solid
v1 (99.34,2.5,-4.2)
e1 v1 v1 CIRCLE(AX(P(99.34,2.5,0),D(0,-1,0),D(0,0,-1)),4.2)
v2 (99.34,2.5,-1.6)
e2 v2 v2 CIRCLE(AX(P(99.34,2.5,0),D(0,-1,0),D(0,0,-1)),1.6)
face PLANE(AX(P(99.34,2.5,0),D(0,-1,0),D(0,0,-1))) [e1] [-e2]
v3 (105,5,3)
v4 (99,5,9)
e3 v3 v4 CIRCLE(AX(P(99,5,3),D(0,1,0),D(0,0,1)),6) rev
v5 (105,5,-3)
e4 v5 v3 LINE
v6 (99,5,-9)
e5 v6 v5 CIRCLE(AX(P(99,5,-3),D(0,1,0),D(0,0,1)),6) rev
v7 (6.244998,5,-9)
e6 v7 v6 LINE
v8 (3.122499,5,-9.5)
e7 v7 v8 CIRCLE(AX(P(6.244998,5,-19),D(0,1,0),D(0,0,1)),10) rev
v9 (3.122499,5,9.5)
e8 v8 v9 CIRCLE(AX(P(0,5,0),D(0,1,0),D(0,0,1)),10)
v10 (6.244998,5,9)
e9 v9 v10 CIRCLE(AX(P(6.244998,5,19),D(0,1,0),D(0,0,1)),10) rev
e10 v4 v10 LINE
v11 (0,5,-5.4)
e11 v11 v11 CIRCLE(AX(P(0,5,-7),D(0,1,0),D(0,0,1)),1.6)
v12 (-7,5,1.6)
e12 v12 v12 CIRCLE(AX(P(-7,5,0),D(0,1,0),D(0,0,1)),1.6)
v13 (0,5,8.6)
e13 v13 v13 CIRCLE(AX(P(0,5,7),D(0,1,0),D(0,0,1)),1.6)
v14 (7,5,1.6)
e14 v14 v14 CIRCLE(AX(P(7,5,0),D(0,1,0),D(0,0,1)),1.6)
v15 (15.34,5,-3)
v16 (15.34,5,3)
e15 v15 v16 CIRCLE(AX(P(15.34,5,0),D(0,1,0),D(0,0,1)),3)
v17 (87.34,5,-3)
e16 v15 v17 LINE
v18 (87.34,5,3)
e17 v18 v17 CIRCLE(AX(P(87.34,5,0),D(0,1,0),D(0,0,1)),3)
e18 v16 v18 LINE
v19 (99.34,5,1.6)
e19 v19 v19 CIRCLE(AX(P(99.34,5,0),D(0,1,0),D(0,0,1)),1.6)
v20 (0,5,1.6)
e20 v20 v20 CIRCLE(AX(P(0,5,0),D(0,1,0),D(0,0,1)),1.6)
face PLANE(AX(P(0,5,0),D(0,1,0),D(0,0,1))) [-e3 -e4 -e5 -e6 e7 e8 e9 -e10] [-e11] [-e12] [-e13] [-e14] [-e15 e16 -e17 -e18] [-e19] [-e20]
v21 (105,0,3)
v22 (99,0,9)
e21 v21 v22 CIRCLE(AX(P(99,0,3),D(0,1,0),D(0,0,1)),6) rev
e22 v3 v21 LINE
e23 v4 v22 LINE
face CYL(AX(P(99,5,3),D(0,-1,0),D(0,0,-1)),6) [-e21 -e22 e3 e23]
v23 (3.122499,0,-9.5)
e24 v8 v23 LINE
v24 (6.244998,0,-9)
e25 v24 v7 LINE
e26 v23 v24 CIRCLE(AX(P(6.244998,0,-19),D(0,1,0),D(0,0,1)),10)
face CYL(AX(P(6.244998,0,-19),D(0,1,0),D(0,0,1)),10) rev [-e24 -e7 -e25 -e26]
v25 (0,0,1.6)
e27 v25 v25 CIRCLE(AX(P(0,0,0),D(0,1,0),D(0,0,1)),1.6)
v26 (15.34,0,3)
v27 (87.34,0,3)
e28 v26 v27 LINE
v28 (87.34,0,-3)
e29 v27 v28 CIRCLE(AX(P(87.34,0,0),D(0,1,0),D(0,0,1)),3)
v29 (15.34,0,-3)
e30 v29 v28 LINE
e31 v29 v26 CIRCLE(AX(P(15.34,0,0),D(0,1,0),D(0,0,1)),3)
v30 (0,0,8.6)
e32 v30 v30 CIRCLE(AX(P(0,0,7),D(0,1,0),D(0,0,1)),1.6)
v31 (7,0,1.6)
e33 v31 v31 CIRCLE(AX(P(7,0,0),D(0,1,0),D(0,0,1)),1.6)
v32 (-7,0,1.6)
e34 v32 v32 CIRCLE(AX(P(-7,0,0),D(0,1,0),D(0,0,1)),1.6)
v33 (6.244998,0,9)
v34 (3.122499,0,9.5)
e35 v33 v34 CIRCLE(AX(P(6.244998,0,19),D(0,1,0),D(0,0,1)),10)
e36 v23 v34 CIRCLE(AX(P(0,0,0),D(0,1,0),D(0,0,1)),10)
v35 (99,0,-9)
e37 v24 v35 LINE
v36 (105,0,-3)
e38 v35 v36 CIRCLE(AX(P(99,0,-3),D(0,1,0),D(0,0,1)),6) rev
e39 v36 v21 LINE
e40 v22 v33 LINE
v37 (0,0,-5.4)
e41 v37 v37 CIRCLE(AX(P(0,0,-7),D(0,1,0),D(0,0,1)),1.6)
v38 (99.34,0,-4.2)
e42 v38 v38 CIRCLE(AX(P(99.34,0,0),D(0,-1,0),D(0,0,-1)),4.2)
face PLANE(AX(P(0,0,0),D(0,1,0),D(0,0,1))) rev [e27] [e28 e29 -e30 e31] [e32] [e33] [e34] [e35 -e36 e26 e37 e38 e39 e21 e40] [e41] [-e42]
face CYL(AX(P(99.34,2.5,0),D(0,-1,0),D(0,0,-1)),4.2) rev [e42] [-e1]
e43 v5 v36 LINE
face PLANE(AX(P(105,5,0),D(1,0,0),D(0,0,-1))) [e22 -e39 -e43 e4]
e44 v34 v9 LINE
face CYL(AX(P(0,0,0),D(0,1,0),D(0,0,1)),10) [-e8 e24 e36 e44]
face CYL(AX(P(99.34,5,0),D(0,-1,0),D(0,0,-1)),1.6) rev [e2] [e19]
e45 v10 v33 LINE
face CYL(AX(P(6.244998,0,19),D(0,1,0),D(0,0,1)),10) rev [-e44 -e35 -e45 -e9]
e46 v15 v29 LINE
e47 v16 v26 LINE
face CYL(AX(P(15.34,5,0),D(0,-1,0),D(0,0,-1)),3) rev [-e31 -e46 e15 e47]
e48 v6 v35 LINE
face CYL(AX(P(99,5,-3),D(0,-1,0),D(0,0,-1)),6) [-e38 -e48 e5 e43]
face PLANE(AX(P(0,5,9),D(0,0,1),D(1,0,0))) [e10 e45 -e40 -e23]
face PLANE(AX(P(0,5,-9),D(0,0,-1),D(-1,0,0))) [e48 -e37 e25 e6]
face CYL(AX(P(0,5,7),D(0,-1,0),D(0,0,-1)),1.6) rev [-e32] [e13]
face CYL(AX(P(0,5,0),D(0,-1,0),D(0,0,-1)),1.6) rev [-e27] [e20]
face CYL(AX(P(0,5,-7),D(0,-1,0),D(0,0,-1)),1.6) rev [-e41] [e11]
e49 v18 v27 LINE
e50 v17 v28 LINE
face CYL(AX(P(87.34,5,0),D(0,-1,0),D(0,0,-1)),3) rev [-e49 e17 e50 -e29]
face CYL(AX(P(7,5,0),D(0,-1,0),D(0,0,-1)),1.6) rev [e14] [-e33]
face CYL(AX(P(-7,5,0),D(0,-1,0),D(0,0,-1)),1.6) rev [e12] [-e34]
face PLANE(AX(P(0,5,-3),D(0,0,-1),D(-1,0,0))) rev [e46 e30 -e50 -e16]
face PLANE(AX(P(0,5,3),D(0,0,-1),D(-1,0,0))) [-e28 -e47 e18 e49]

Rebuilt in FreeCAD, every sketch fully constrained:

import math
import FreeCAD as App
import Part
import Sketcher

V = App.Vector
Q = App.Units.Quantity


def edges_at(feature, points):
    """Names of the edges that pass closest to the given points."""
    edges = feature.Shape.Edges
    near = lambda p: min(range(len(edges)), key=lambda i: edges[i].distToShape(Part.Vertex(*p))[0])
    return sorted({f"Edge{near(p) + 1}" for p in points})

doc = App.newDocument("Part")
body = doc.addObject("PartDesign::Body", "Body")

# Sketch on XZ plane
sketch1 = doc.addObject("Sketcher::SketchObject", "Sketch")
body.addObject(sketch1)
sketch1.AttachmentSupport = (doc.XZ_Plane, [""])
sketch1.MapMode = "FlatFace"
sketch1.addGeometry([
    Part.LineSegment(V(99, -9, 0), V(0, -9, 0)),  # 0
    Part.ArcOfCircle(Part.Circle(V(0, 0, 0), V(0, 0, 1), 9), math.radians(90), math.radians(270)),  # 1
    Part.LineSegment(V(0, 9, 0), V(99, 9, 0)),  # 2
    Part.ArcOfCircle(Part.Circle(V(99, 3, 0), V(0, 0, 1), 6), math.radians(0), math.radians(90)),  # 3
    Part.LineSegment(V(105, 3, 0), V(105, -3, 0)),  # 4
    Part.ArcOfCircle(Part.Circle(V(99, -3, 0), V(0, 0, 1), 6), math.radians(-90), math.radians(0)),  # 5
    Part.LineSegment(V(87.34, 3, 0), V(15.34, 3, 0)),  # 6
    Part.ArcOfCircle(Part.Circle(V(15.34, 0, 0), V(0, 0, 1), 3), math.radians(90), math.radians(270)),  # 7
    Part.LineSegment(V(15.34, -3, 0), V(87.34, -3, 0)),  # 8
    Part.ArcOfCircle(Part.Circle(V(87.34, 0, 0), V(0, 0, 1), 3), math.radians(-90), math.radians(90)),  # 9
    Part.Circle(V(99.34, 0, 0), V(0, 0, 1), 1.6),  # 10
    Part.Circle(V(0, -7, 0), V(0, 0, 1), 1.6),  # 11
    Part.Circle(V(7, 0, 0), V(0, 0, 1), 1.6),  # 12
    Part.Circle(V(0, 7, 0), V(0, 0, 1), 1.6),  # 13
    Part.Circle(V(-7, 0, 0), V(0, 0, 1), 1.6),  # 14
    Part.Circle(V(0, 0, 0), V(0, 0, 1), 1.6),  # 15
], False)
sketch1.addConstraint([
    Sketcher.Constraint("Tangent", 0, 2, 1, 2),
    Sketcher.Constraint("Tangent", 1, 1, 2, 1),
    Sketcher.Constraint("Tangent", 2, 2, 3, 2),
    Sketcher.Constraint("Tangent", 3, 1, 4, 1),
    Sketcher.Constraint("Tangent", 4, 2, 5, 2),
    Sketcher.Constraint("Tangent", 5, 1, 0, 1),
    Sketcher.Constraint("Tangent", 6, 2, 7, 1),
    Sketcher.Constraint("Tangent", 7, 2, 8, 1),
    Sketcher.Constraint("Tangent", 8, 2, 9, 1),
    Sketcher.Constraint("Tangent", 9, 2, 6, 1),
    Sketcher.Constraint("Horizontal", 0),
    Sketcher.Constraint("Horizontal", 2),
    Sketcher.Constraint("Vertical", 4),
    Sketcher.Constraint("Horizontal", 6),
    Sketcher.Constraint("Horizontal", 8),
    Sketcher.Constraint("Coincident", 1, 3, -1, 1),
    Sketcher.Constraint("Coincident", 15, 3, -1, 1),
    Sketcher.Constraint("Equal", 3, 5),
    Sketcher.Constraint("Equal", 10, 11),
    Sketcher.Constraint("Equal", 11, 12),
    Sketcher.Constraint("Equal", 12, 13),
    Sketcher.Constraint("Equal", 13, 14),
    Sketcher.Constraint("Equal", 14, 15),
    Sketcher.Constraint("Symmetric", 11, 3, 13, 3, -1, 1),
    Sketcher.Constraint("Symmetric", 12, 3, 14, 3, -1, 1),
    Sketcher.Constraint("PointOnObject", 7, 3, -1),
    Sketcher.Constraint("PointOnObject", 10, 3, -1),
    Sketcher.Constraint("PointOnObject", 11, 3, -2),
    Sketcher.Constraint("PointOnObject", 12, 3, -1),
    Sketcher.Constraint("Horizontal", 3, 1, 6, 2),
    Sketcher.Constraint("Radius", 1, Q("9 mm")),
    Sketcher.Constraint("Radius", 3, Q("6 mm")),
    Sketcher.Constraint("Diameter", 10, Q("3.2 mm")),
    Sketcher.Constraint("DistanceX", 0, 2, 0, 1, Q("99 mm")),
    Sketcher.Constraint("DistanceX", 6, 2, 6, 1, Q("72 mm")),
    Sketcher.Constraint("DistanceY", 11, 3, -1, 1, Q("7 mm")),
    Sketcher.Constraint("DistanceX", -1, 1, 12, 3, Q("7 mm")),
    Sketcher.Constraint("DistanceX", 9, 3, 10, 3, Q("12 mm")),
    Sketcher.Constraint("DistanceX", -1, 1, 7, 3, Q("15.34 mm")),
])
pad1 = doc.addObject("PartDesign::Pad", "Pad")
body.addObject(pad1)
pad1.Profile = sketch1
pad1.Length = 5
pad1.Reversed = True

# Sketch on XZ plane
sketch2 = doc.addObject("Sketcher::SketchObject", "Sketch001")
body.addObject(sketch2)
sketch2.AttachmentSupport = (doc.XZ_Plane, [""])
sketch2.MapMode = "FlatFace"
sketch2.addGeometry(Part.Circle(V(99.34, 0, 0), V(0, 0, 1), 4.2), False)
sketch2.addConstraint([
    Sketcher.Constraint("PointOnObject", 0, 3, -1),
    Sketcher.Constraint("Diameter", 0, Q("8.4 mm")),
    Sketcher.Constraint("DistanceX", -1, 1, 0, 3, Q("99.34 mm")),
])
pocket1 = doc.addObject("PartDesign::Pocket", "Pocket")
body.addObject(pocket1)
pocket1.Profile = sketch2
pocket1.Length = 2.5

# Sketch on XZ plane
sketch3 = doc.addObject("Sketcher::SketchObject", "Sketch002")
body.addObject(sketch3)
sketch3.AttachmentSupport = (doc.XZ_Plane, [""])
sketch3.MapMode = "FlatFace"
sketch3.addGeometry([
    Part.Circle(V(0, 0, 0), V(0, 0, 1), 10),
    Part.Circle(V(0, 0, 0), V(0, 0, 1), 9),
], False)
sketch3.addConstraint([
    Sketcher.Constraint("Coincident", 0, 3, -1, 1),
    Sketcher.Constraint("Coincident", 1, 3, -1, 1),
    Sketcher.Constraint("Diameter", 0, Q("20 mm")),
    Sketcher.Constraint("Diameter", 1, Q("18 mm")),
])
pad2 = doc.addObject("PartDesign::Pad", "Pad001")
body.addObject(pad2)
pad2.Profile = sketch3
pad2.Length = 5
pad2.Reversed = True
doc.recompute()

fillet = doc.addObject("PartDesign::Fillet", "Fillet")
body.addObject(fillet)
fillet.Base = (pad2, edges_at(pad2, [(4.359, 2.5, -9), (4.359, 2.5, 9)]))
fillet.Radius = 10

doc.recompute()
